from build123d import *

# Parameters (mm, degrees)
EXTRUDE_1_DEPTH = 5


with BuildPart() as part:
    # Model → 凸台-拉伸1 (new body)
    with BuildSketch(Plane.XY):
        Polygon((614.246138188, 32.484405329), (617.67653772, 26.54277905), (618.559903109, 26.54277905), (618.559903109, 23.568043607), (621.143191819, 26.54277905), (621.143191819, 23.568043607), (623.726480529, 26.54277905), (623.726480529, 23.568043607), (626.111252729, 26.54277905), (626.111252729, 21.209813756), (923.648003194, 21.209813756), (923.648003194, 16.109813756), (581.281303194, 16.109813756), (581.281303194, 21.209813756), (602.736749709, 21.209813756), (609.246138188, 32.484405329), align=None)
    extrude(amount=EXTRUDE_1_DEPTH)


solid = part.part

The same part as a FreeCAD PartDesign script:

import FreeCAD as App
import Part
import Sketcher
Q = App.Units.Quantity


def add_polygon(sketch, points):
    """Adds a closed chain of lines whose ends are joined by coincident constraints."""
    first, n = sketch.GeometryCount, len(points)
    for a, b in zip(points, points[1:] + points[:1]):
        sketch.addGeometry(Part.LineSegment(App.Vector(*a, 0), App.Vector(*b, 0)), False)
    for i in range(n):
        sketch.addConstraint(Sketcher.Constraint("Coincident", first + i, 2, first + (i + 1) % n, 1))

doc = App.newDocument("Part")
body = doc.addObject("PartDesign::Body", "Body")

sketch1 = doc.addObject("Sketcher::SketchObject", "Sketch")
body.addObject(sketch1)
sketch1.AttachmentSupport = (doc.XY_Plane, [""])
sketch1.MapMode = "FlatFace"
add_polygon(sketch1, [(617.676538, 26.542779), (614.246138, 32.484405), (609.246138, 32.484405), (602.73675, 21.209814), (581.281303, 21.209814), (581.281303, 16.109814), (923.648003, 16.109814), (923.648003, 21.209814), (626.111253, 21.209814), (626.111253, 26.542779), (623.726481, 23.568044), (623.726481, 26.542779), (621.143192, 23.568044), (621.143192, 26.542779), (618.559903, 23.568044), (618.559903, 26.542779)])
sketch1.addConstraint([
    Sketcher.Constraint("Horizontal", 1),
    Sketcher.Constraint("Horizontal", 3),
    Sketcher.Constraint("Vertical", 4),
    Sketcher.Constraint("Horizontal", 5),
    Sketcher.Constraint("Vertical", 6),
    Sketcher.Constraint("Horizontal", 7),
    Sketcher.Constraint("Vertical", 8),
    Sketcher.Constraint("Vertical", 10),
    Sketcher.Constraint("Vertical", 12),
    Sketcher.Constraint("Vertical", 14),
    Sketcher.Constraint("Horizontal", 15),
    Sketcher.Constraint("Parallel", 11, 13),
    Sketcher.Constraint("Horizontal", 3, 2, 6, 2),
    Sketcher.Constraint("Horizontal", 8, 2, 10, 2),
    Sketcher.Constraint("Horizontal", 9, 2, 11, 2),
    Sketcher.Constraint("Horizontal", 10, 2, 12, 2),
    Sketcher.Constraint("Horizontal", 11, 2, 13, 2),
    Sketcher.Constraint("Horizontal", 12, 2, 14, 2),
    Sketcher.Constraint("DistanceX", 1, 2, 1, 1, 5.0),
    Sketcher.Constraint("Angle", 0, Q("120 deg")),
    Sketcher.Constraint("Angle", 2, Q("-120 deg")),
    Sketcher.Constraint("DistanceY", 4, 2, 4, 1, 5.1),
    Sketcher.Constraint("DistanceX", 5, 1, 5, 2, 342.3667),
    Sketcher.Constraint("Distance", 0, 6.860799),
    Sketcher.Constraint("DistanceX", 7, 2, 7, 1, 297.53675),
    Sketcher.Constraint("Distance", 11, 3.939852),
    Sketcher.Constraint("DistanceX", 3, 2, 3, 1, 21.455447),
    Sketcher.Constraint("DistanceX", 15, 2, 15, 1, 0.883365),
    Sketcher.Constraint("DistanceY", 8, 1, 8, 2, 5.332965),
    Sketcher.Constraint("DistanceY", 10, 1, 10, 2, 2.974735),
    Sketcher.Constraint("DistanceX", -1, 1, 0, 2, 614.246138),
    Sketcher.Constraint("DistanceY", -1, 1, 8, 2, 26.542779),
])
pad1 = doc.addObject("PartDesign::Pad", "Pad")
body.addObject(pad1)
pad1.Profile = sketch1
pad1.Length = 5

doc.recompute()
